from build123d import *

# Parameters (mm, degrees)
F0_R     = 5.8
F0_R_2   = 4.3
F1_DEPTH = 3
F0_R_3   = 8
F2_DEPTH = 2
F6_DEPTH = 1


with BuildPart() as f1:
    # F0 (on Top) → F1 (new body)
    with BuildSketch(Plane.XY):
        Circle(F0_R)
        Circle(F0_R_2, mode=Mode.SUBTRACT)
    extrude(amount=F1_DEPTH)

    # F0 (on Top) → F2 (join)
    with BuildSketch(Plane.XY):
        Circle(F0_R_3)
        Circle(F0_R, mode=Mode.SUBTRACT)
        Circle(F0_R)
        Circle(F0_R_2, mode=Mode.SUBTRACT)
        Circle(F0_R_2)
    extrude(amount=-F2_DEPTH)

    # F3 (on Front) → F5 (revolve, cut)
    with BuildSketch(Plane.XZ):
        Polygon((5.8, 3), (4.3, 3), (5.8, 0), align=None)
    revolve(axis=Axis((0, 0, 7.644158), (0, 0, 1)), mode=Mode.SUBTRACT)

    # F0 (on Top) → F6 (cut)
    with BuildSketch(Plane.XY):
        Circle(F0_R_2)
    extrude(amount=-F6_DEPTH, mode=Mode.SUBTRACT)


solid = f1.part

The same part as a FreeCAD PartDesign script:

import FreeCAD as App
import Part
import Sketcher
from FreeCAD import Vector


def add_polygon(sketch, points):
    """Adds a closed chain of lines whose ends are joined by coincident constraints."""
    first, n = sketch.GeometryCount, len(points)
    for a, b in zip(points, points[1:] + points[:1]):
        sketch.addGeometry(Part.LineSegment(App.Vector(*a, 0), App.Vector(*b, 0)), False)
    for i in range(n):
        sketch.addConstraint(Sketcher.Constraint("Coincident", first + i, 2, first + (i + 1) % n, 1))

doc = App.newDocument("Part")
body = doc.addObject("PartDesign::Body", "Body")

sketch1 = body.newObject("Sketcher::SketchObject", "Sketch")
sketch1.AttachmentSupport = (doc.getObject("XY_Plane"), [""])
sketch1.MapMode = "FlatFace"
sketch1.addGeometry(Part.Circle(Vector(0, 0, 0), Vector(0, 0, 1), 5.8), False)
sketch1.addGeometry(Part.Circle(Vector(0, 0, 0), Vector(0, 0, 1), 4.3), False)
sketch1.addConstraint(Sketcher.Constraint("Coincident", 0, 3, -1, 1))
sketch1.addConstraint(Sketcher.Constraint("Coincident", 1, 3, -1, 1))
sketch1.addConstraint(Sketcher.Constraint("Diameter", 0, 11.6))
sketch1.addConstraint(Sketcher.Constraint("Diameter", 1, 8.6))
pad1 = body.newObject("PartDesign::Pad", "Pad")
pad1.Profile = sketch1
pad1.Length = 3

sketch2 = body.newObject("Sketcher::SketchObject", "Sketch001")
sketch2.AttachmentSupport = (doc.getObject("XY_Plane"), [""])
sketch2.MapMode = "FlatFace"
sketch2.addGeometry(Part.Circle(Vector(0, 0, 0), Vector(0, 0, 1), 8), False)
sketch2.addConstraint(Sketcher.Constraint("Coincident", 0, 3, -1, 1))
sketch2.addConstraint(Sketcher.Constraint("Diameter", 0, 16.0))
pad2 = body.newObject("PartDesign::Pad", "Pad001")
pad2.Profile = sketch2
pad2.Length = 2
pad2.Reversed = True

sketch3 = body.newObject("Sketcher::SketchObject", "Sketch002")
sketch3.AttachmentSupport = (doc.getObject("XZ_Plane"), [""])
sketch3.MapMode = "FlatFace"
add_polygon(sketch3, [(5.8, 3), (4.3, 3), (5.8, 0)])
sketch3.addConstraint(Sketcher.Constraint("Horizontal", 0))
sketch3.addConstraint(Sketcher.Constraint("Vertical", 2))
sketch3.addConstraint(Sketcher.Constraint("PointOnObject", 1, 2, -1))
sketch3.addConstraint(Sketcher.Constraint("DistanceY", 2, 1, 2, 2, 3.0))
sketch3.addConstraint(Sketcher.Constraint("DistanceX", 0, 2, 0, 1, 1.5))
sketch3.addConstraint(Sketcher.Constraint("DistanceX", -1, 1, 0, 2, 4.3))
groove = body.newObject("PartDesign::Groove", "Groove")
groove.Profile = sketch3
groove.ReferenceAxis = (sketch3, ["V_Axis"])
groove.Angle = 360

sketch4 = body.newObject("Sketcher::SketchObject", "Sketch003")
sketch4.AttachmentSupport = (doc.getObject("XY_Plane"), [""])
sketch4.MapMode = "FlatFace"
sketch4.addGeometry(Part.Circle(Vector(0, 0, 0), Vector(0, 0, 1), 4.3), False)
sketch4.addConstraint(Sketcher.Constraint("Coincident", 0, 3, -1, 1))
sketch4.addConstraint(Sketcher.Constraint("Diameter", 0, 8.6))
pocket1 = body.newObject("PartDesign::Pocket", "Pocket")
pocket1.Profile = sketch4
pocket1.Length = 1

doc.recompute()
